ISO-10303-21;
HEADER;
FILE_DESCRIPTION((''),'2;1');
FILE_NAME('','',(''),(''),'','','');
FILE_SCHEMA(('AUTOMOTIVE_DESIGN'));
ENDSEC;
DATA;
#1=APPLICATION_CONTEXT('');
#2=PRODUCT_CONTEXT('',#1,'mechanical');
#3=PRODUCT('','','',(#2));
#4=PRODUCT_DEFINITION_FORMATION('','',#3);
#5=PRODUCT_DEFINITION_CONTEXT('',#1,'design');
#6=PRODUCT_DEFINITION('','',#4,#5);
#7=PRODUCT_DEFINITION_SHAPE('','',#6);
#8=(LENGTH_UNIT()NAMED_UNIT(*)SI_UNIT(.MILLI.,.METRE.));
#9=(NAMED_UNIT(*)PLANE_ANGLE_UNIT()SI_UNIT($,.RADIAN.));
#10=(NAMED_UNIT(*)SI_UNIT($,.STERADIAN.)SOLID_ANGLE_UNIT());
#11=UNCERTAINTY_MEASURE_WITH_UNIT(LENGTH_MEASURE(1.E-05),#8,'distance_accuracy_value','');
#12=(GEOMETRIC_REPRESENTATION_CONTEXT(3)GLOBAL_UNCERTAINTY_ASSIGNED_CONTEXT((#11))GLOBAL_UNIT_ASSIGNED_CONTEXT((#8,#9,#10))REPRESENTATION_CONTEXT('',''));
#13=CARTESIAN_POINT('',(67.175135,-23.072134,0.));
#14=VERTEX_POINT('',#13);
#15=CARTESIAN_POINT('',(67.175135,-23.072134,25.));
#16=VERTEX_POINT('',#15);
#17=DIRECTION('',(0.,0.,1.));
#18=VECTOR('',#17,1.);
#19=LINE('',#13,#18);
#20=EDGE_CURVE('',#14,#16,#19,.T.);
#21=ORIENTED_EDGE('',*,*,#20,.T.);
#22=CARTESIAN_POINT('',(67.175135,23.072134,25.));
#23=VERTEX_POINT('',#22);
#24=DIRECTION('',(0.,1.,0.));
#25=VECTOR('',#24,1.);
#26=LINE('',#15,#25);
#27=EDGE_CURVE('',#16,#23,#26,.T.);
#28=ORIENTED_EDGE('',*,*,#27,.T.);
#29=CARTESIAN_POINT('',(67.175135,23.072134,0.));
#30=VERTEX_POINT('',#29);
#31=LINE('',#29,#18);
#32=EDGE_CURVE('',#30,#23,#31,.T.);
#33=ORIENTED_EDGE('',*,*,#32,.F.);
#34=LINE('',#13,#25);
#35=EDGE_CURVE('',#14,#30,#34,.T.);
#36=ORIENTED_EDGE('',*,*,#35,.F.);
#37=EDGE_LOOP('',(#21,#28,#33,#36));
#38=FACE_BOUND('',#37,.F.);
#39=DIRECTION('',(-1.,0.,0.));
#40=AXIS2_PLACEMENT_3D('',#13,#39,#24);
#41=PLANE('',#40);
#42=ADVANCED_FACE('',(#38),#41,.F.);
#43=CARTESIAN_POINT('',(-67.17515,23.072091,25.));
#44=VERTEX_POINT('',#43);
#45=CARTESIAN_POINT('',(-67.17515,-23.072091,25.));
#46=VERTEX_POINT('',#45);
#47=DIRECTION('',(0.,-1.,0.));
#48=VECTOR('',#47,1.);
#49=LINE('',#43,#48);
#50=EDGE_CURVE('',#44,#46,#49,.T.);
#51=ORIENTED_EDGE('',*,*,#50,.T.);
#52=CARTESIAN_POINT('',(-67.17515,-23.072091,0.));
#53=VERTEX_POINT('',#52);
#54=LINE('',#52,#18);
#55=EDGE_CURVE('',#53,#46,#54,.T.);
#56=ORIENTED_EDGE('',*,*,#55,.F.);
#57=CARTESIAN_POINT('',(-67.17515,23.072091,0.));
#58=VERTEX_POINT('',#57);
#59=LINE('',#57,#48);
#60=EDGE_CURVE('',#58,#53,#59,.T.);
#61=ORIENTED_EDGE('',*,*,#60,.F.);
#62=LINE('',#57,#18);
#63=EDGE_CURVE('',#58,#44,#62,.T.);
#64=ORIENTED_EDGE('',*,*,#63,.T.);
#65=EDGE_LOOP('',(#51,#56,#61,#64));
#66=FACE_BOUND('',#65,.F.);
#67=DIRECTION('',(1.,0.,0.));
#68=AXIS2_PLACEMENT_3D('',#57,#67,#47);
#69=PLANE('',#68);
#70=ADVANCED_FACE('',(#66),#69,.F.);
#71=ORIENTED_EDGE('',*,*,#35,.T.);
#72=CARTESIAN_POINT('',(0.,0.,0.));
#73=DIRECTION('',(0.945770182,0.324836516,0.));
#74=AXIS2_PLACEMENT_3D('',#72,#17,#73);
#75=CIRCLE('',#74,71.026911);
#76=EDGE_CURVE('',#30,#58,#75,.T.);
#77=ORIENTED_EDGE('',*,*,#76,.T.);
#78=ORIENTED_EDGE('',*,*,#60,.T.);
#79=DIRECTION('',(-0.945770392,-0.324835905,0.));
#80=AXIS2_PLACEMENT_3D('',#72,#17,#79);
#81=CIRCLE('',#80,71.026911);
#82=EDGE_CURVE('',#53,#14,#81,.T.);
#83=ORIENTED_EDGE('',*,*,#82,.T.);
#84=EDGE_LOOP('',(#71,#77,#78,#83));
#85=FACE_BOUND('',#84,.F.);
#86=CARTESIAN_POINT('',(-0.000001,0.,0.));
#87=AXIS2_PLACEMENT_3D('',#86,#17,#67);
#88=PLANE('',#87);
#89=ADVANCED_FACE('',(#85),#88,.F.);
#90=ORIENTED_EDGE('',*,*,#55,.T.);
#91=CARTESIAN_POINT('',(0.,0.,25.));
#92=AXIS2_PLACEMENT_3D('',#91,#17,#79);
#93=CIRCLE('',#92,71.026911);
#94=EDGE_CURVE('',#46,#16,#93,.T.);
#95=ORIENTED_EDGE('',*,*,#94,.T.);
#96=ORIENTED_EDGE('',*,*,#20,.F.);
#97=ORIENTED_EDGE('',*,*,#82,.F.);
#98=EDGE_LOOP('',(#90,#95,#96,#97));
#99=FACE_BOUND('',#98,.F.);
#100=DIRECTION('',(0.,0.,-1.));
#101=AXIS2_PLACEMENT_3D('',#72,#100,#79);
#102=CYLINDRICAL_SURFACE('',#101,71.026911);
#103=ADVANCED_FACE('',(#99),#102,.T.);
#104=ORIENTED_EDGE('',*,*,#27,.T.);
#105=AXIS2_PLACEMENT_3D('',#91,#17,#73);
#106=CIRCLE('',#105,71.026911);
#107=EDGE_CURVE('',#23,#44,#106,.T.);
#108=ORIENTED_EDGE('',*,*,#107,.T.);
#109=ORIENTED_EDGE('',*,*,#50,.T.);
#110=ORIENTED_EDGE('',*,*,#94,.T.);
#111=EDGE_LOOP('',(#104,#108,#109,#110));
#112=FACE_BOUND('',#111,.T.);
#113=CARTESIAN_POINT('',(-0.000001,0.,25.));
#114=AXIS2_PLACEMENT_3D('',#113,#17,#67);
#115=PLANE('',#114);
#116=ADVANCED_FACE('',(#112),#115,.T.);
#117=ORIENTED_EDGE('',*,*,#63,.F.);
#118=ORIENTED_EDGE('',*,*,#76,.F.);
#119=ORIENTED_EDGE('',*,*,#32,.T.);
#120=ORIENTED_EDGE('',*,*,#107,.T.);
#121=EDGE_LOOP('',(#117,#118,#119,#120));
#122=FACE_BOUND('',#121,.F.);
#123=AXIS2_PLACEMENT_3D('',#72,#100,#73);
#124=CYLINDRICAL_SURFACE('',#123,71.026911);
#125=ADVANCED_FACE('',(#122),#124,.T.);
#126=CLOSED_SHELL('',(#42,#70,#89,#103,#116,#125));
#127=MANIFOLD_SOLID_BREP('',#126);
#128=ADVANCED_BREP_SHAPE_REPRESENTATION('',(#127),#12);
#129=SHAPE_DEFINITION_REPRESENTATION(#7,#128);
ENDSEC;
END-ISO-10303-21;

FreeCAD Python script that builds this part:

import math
import FreeCAD as App
import Part
import Sketcher
Q = App.Units.Quantity

doc = App.newDocument("Part")
body = doc.addObject("PartDesign::Body", "Body")

# Sketch on XY plane
sketch1 = body.newObject("Sketcher::SketchObject", "Sketch")
sketch1.AttachmentSupport = (doc.getObject("XY_Plane"), [""])
sketch1.MapMode = "FlatFace"
sketch1.addGeometry(Part.LineSegment(App.Vector(67.175135, -23.072134, 0), App.Vector(67.175135, 23.072134, 0)), False)
sketch1.addGeometry(Part.ArcOfCircle(Part.Circle(App.Vector(0, 0, 0), App.Vector(0, 0, 1), 71.026911), math.radians(18.955671), math.radians(161.044366)), False)
sketch1.addGeometry(Part.LineSegment(App.Vector(-67.17515, 23.072091, 0), App.Vector(-67.17515, -23.072091, 0)), False)
sketch1.addGeometry(Part.ArcOfCircle(Part.Circle(App.Vector(0, 0, 0), App.Vector(0, 0, 1), 71.026911), math.radians(-161.044366), math.radians(-18.955671)), False)
sketch1.addConstraint(Sketcher.Constraint("Coincident", 0, 2, 1, 1))
sketch1.addConstraint(Sketcher.Constraint("Coincident", 1, 2, 2, 1))
sketch1.addConstraint(Sketcher.Constraint("Coincident", 2, 2, 3, 1))
sketch1.addConstraint(Sketcher.Constraint("Coincident", 3, 2, 0, 1))
sketch1.addConstraint(Sketcher.Constraint("Vertical", 0))
sketch1.addConstraint(Sketcher.Constraint("Vertical", 2))
sketch1.addConstraint(Sketcher.Constraint("Coincident", 1, 3, -1, 1))
sketch1.addConstraint(Sketcher.Constraint("Coincident", 3, 3, -1, 1))
sketch1.addConstraint(Sketcher.Constraint("Equal", 1, 3))
sketch1.addConstraint(Sketcher.Constraint("Radius", 1, Q("71.026911 mm")))
sketch1.addConstraint(Sketcher.Constraint("DistanceY", 0, 1, 0, 2, Q("46.144269 mm")))
sketch1.addConstraint(Sketcher.Constraint("DistanceY", 2, 2, 2, 1, Q("46.144182 mm")))
pad1 = body.newObject("PartDesign::Pad", "Pad")
pad1.Profile = sketch1
pad1.Length = 25

doc.recompute()
